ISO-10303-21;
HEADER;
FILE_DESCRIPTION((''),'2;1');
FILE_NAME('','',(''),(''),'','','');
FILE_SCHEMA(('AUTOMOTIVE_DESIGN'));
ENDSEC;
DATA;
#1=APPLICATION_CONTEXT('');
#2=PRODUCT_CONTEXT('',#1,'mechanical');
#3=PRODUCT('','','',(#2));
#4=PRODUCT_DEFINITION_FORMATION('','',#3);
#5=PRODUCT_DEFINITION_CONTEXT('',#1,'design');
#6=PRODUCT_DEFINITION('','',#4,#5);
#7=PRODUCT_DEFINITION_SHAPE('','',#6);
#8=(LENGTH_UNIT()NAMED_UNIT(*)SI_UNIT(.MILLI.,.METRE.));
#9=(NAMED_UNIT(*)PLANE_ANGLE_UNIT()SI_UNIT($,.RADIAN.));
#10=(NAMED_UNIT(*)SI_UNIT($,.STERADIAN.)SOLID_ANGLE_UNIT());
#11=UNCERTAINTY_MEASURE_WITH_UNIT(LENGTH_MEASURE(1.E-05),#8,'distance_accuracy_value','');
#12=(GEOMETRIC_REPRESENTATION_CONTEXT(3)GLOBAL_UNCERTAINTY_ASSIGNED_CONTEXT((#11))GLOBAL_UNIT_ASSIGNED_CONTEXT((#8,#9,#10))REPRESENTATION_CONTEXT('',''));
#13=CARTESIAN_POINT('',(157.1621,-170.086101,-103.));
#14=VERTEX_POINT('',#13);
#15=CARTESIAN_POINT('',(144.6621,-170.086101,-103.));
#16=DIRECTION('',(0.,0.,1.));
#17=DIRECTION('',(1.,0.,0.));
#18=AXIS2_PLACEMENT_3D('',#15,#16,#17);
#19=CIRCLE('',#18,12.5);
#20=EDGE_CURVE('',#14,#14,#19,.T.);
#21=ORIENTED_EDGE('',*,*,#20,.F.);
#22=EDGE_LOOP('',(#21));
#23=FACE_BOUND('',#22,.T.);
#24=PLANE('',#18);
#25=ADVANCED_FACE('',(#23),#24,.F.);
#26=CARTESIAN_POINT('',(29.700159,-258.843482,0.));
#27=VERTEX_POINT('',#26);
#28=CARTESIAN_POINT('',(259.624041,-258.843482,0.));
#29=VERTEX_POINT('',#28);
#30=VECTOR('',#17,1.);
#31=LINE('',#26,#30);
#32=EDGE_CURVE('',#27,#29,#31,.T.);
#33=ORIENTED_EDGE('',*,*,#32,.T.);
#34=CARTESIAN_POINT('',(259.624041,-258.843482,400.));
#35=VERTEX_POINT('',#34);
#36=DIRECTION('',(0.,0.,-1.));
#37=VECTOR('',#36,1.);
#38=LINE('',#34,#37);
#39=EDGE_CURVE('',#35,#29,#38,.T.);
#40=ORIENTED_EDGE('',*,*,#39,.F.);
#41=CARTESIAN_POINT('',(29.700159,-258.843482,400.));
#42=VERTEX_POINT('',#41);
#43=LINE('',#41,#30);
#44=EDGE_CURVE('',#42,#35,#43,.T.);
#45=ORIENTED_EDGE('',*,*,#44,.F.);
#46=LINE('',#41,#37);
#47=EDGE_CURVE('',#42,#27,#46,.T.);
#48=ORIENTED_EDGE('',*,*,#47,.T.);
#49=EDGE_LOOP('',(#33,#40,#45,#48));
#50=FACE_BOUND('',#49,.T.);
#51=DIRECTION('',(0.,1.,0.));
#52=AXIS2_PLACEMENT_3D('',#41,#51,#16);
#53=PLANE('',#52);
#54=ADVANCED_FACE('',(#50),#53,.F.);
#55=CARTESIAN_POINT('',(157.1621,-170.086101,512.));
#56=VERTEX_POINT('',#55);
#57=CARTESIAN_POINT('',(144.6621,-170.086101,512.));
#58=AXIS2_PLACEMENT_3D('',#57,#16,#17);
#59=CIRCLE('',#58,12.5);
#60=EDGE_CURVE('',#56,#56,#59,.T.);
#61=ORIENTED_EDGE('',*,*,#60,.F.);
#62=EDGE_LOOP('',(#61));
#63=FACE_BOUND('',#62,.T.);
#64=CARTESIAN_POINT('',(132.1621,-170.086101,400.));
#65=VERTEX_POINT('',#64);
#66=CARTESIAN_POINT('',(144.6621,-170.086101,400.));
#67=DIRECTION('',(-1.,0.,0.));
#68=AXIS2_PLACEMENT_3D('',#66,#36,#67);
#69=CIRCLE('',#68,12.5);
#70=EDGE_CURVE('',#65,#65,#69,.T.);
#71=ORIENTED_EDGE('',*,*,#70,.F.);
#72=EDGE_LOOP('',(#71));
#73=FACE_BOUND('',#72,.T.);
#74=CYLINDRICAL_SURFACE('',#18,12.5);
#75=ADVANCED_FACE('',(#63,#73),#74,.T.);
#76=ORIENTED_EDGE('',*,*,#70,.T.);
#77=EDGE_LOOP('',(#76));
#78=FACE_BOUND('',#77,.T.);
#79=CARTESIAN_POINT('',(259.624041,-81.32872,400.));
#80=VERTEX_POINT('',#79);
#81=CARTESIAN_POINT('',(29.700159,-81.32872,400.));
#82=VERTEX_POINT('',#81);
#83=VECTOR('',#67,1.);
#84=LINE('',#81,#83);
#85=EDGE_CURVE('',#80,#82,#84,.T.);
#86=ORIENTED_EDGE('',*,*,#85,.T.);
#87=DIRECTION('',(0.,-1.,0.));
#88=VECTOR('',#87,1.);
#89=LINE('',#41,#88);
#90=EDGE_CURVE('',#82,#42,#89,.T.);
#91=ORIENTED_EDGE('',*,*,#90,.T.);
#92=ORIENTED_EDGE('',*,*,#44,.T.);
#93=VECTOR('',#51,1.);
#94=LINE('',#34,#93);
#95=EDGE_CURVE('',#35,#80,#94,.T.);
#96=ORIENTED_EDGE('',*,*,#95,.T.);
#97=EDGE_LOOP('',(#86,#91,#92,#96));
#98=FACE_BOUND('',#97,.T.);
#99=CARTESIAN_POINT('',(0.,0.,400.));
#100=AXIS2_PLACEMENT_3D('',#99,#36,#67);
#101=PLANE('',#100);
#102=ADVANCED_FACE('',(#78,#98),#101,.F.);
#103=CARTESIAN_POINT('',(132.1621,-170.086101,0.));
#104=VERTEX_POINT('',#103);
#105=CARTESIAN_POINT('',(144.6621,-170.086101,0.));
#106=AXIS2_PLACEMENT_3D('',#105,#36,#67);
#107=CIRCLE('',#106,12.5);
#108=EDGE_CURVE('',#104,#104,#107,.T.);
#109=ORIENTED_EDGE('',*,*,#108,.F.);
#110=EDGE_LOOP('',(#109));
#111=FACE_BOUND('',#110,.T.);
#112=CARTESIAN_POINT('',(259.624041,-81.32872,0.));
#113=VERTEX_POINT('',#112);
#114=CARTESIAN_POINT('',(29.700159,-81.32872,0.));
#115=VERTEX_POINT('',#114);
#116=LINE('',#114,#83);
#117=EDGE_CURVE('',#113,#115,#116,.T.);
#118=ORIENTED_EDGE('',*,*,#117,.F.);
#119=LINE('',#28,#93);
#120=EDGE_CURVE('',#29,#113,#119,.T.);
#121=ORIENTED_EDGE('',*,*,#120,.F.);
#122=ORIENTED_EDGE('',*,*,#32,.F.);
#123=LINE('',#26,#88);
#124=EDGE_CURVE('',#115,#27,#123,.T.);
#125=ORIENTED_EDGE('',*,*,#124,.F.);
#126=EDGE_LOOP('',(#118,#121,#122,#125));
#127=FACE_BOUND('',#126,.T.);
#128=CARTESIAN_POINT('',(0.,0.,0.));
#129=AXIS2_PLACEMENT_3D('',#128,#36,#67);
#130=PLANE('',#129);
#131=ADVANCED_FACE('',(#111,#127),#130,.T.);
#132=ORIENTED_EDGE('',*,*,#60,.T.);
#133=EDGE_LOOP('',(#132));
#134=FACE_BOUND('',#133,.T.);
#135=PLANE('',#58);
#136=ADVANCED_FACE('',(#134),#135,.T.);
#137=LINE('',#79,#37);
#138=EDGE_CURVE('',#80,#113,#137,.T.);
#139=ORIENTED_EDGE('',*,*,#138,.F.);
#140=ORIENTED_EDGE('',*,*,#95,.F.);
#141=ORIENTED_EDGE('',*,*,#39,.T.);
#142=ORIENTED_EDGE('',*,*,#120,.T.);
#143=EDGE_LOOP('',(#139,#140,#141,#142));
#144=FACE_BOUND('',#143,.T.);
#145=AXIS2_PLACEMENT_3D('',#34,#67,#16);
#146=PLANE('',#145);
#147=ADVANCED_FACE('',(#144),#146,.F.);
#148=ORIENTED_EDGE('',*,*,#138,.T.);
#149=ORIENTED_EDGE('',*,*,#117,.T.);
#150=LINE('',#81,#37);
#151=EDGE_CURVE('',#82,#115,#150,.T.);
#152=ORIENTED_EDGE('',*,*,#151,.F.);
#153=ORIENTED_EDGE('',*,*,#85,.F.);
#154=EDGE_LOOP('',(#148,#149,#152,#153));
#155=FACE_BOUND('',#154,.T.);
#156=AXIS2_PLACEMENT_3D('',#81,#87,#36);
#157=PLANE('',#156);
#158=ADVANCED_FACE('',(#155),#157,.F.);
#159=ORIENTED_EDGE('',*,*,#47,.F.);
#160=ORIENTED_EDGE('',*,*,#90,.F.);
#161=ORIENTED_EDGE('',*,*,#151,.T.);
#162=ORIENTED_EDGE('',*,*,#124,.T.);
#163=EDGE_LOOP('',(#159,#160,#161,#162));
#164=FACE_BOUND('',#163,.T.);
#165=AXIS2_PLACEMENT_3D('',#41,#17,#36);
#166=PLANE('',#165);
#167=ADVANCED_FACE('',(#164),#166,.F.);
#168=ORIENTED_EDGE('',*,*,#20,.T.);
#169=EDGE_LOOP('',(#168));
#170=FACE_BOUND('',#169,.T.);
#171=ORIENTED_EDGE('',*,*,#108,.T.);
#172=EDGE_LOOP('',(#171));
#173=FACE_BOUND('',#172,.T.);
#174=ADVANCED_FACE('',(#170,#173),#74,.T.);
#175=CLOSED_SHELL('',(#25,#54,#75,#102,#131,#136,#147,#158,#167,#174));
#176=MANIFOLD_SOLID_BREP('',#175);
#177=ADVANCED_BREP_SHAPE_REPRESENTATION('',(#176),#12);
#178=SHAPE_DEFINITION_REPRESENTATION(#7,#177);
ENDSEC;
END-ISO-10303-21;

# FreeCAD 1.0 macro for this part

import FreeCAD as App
import Part
import Sketcher

V = App.Vector
Q = App.Units.Quantity

doc = App.newDocument("Part")
body = doc.addObject("PartDesign::Body", "Body")

sketch1 = body.newObject("Sketcher::SketchObject", "Sketch")
sketch1.AttachmentSupport = (doc.getObject("XY_Plane"), [""])
sketch1.MapMode = "FlatFace"
sketch1.addGeometry([
    Part.LineSegment(V(30, -81, 0), V(30, -259, 0)),
    Part.LineSegment(V(30, -259, 0), V(260, -259, 0)),
    Part.LineSegment(V(260, -259, 0), V(260, -81, 0)),
    Part.LineSegment(V(260, -81, 0), V(30, -81, 0)),
], False)
sketch1.addConstraint([
    Sketcher.Constraint("Coincident", 0, 2, 1, 1),
    Sketcher.Constraint("Coincident", 1, 2, 2, 1),
    Sketcher.Constraint("Coincident", 2, 2, 3, 1),
    Sketcher.Constraint("Coincident", 3, 2, 0, 1),
    Sketcher.Constraint("Vertical", 0),
    Sketcher.Constraint("Horizontal", 1),
    Sketcher.Constraint("Vertical", 2),
    Sketcher.Constraint("Horizontal", 3),
    Sketcher.Constraint("DistanceX", 1, 1, 1, 2, Q("229.923882 mm")),
    Sketcher.Constraint("DistanceY", 0, 2, 0, 1, Q("177.514762 mm")),
    Sketcher.Constraint("DistanceX", -1, 1, 0, 2, Q("29.700159 mm")),
    Sketcher.Constraint("DistanceY", 0, 2, -1, 1, Q("258.843482 mm")),
])
pad1 = body.newObject("PartDesign::Pad", "Pad")
pad1.Profile = sketch1
pad1.Length = 400

sketch2 = body.newObject("Sketcher::SketchObject", "Sketch001")
sketch2.AttachmentSupport = (doc.getObject("XY_Plane"), [""])
sketch2.MapMode = "FlatFace"
sketch2.AttachmentOffset = App.Placement(V(0, 0, 400), App.Rotation())
sketch2.addGeometry(Part.Circle(V(145, -170, 0), V(0, 0, 1), 12), False)
sketch2.addConstraint([
    Sketcher.Constraint("Diameter", 0, Q("25 mm")),
    Sketcher.Constraint("DistanceX", -1, 1, 0, 3, Q("144.6621 mm")),
    Sketcher.Constraint("DistanceY", 0, 3, -1, 1, Q("170.086101 mm")),
])
pad2 = body.newObject("PartDesign::Pad", "Pad001")
pad2.Profile = sketch2
pad2.Type = "TwoLengths"
pad2.Length = 112
pad2.Length2 = 503

doc.recompute()
